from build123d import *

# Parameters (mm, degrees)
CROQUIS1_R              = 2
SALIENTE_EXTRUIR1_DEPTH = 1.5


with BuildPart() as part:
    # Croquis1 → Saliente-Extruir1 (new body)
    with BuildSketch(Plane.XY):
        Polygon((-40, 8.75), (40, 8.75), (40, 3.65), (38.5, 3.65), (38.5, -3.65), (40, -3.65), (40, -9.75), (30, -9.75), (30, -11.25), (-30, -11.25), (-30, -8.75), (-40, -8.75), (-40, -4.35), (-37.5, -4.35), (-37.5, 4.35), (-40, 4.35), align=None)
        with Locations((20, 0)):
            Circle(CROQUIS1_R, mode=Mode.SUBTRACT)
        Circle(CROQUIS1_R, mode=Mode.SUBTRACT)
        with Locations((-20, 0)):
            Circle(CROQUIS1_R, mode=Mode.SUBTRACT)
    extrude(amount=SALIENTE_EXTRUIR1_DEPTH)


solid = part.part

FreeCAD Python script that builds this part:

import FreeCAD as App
import Part
import Sketcher

V = App.Vector


def add_polygon(sketch, points):
    """Adds a closed chain of lines whose ends are joined by coincident constraints."""
    first, n = sketch.GeometryCount, len(points)
    for a, b in zip(points, points[1:] + points[:1]):
        sketch.addGeometry(Part.LineSegment(App.Vector(*a, 0), App.Vector(*b, 0)), False)
    for i in range(n):
        sketch.addConstraint(Sketcher.Constraint("Coincident", first + i, 2, first + (i + 1) % n, 1))

doc = App.newDocument("Part")
body = doc.addObject("PartDesign::Body", "Body")

sketch1 = doc.addObject("Sketcher::SketchObject", "Sketch")
body.addObject(sketch1)
sketch1.AttachmentSupport = (doc.XY_Plane, [""])
sketch1.MapMode = "FlatFace"
add_polygon(sketch1, [(40, 8.8), (-40, 8.8), (-40, 4.3), (-37.5, 4.3), (-37.5, -4.3), (-40, -4.3), (-40, -8.8), (-30, -8.8), (-30, -11.2), (30, -11.2), (30, -9.8), (40, -9.8), (40, -3.6), (38.5, -3.6), (38.5, 3.6), (40, 3.6)])
sketch1.addGeometry(Part.Circle(V(20, 0, 0), V(0, 0, 1), 2), False)
sketch1.addGeometry(Part.Circle(V(0, 0, 0), V(0, 0, 1), 2), False)
sketch1.addGeometry(Part.Circle(V(-20, 0, 0), V(0, 0, 1), 2), False)
sketch1.addConstraint([
    Sketcher.Constraint("Horizontal", 0),
    Sketcher.Constraint("Vertical", 1),
    Sketcher.Constraint("Horizontal", 2),
    Sketcher.Constraint("Vertical", 3),
    Sketcher.Constraint("Horizontal", 4),
    Sketcher.Constraint("Vertical", 5),
    Sketcher.Constraint("Horizontal", 6),
    Sketcher.Constraint("Vertical", 7),
    Sketcher.Constraint("Horizontal", 8),
    Sketcher.Constraint("Vertical", 9),
    Sketcher.Constraint("Horizontal", 10),
    Sketcher.Constraint("Vertical", 11),
    Sketcher.Constraint("Horizontal", 12),
    Sketcher.Constraint("Vertical", 13),
    Sketcher.Constraint("Horizontal", 14),
    Sketcher.Constraint("Vertical", 15),
    Sketcher.Constraint("Coincident", 17, 3, -1, 1),
    Sketcher.Constraint("Equal", 16, 17),
    Sketcher.Constraint("Equal", 17, 18),
    Sketcher.Constraint("Symmetric", 16, 3, 18, 3, -1, 1),
    Sketcher.Constraint("Symmetric", 5, 2, 15, 2, -1, 1),
    Sketcher.Constraint("Symmetric", 1, 2, 4, 2, -1),
    Sketcher.Constraint("Symmetric", 11, 2, 14, 2, -1),
    Sketcher.Constraint("PointOnObject", 16, 3, -1),
    Sketcher.Constraint("Equal", 6, 10),
    Sketcher.Constraint("Equal", 4, 7),
    Sketcher.Constraint("Equal", 14, 9),
    Sketcher.Constraint("Diameter", 16, 4.0),
    Sketcher.Constraint("DistanceX", 0, 2, 0, 1, 80.0),
    Sketcher.Constraint("DistanceX", 6, 1, 6, 2, 10.0),
    Sketcher.Constraint("DistanceX", 2, 1, 2, 2, 2.5),
    Sketcher.Constraint("DistanceX", 12, 2, 12, 1, 1.5),
    Sketcher.Constraint("DistanceY", 1, 2, 1, 1, 4.4),
    Sketcher.Constraint("DistanceY", 3, 2, 3, 1, 8.7),
    Sketcher.Constraint("DistanceY", 11, 1, 11, 2, 6.1),
    Sketcher.Constraint("DistanceX", -1, 1, 16, 3, 20.0),
])
pad1 = doc.addObject("PartDesign::Pad", "Pad")
body.addObject(pad1)
pad1.Profile = sketch1
pad1.Length = 1.5

doc.recompute()
